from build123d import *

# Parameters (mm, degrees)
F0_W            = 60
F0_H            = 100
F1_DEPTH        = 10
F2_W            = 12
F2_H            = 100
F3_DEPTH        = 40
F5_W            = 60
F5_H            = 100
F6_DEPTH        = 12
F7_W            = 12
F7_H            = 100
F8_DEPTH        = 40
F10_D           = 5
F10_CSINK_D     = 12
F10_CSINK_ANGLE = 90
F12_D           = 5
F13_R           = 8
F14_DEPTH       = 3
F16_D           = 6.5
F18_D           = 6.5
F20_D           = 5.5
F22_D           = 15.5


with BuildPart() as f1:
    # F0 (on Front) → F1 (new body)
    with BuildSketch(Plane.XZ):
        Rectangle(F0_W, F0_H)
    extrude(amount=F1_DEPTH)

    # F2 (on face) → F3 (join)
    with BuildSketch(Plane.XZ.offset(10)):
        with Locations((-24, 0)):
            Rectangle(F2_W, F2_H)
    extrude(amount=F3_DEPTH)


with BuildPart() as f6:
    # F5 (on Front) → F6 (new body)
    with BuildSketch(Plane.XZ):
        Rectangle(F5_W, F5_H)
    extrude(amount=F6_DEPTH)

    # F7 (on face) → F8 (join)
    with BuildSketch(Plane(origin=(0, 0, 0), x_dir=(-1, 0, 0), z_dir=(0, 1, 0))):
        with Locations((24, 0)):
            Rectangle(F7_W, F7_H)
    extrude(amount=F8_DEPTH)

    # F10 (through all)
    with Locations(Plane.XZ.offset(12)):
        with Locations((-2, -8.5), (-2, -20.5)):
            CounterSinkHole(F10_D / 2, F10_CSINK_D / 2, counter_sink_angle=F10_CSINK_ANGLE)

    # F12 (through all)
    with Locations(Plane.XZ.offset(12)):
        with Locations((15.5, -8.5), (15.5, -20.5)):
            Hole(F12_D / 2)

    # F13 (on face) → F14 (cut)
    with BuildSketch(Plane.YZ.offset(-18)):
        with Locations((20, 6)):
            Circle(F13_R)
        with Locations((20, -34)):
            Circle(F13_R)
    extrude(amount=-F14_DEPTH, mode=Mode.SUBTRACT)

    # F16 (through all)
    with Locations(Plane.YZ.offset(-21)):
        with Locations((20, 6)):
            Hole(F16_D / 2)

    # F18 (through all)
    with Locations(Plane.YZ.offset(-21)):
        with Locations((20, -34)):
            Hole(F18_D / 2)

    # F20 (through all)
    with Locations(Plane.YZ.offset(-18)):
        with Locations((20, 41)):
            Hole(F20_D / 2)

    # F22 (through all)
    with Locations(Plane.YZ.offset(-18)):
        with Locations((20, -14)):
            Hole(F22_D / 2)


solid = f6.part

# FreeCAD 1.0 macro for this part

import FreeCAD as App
import Part
import Sketcher

doc = App.newDocument("Part")
body = doc.addObject("PartDesign::Body", "Body")

sketch1 = body.newObject("Sketcher::SketchObject", "Sketch")
sketch1.AttachmentSupport = (doc.getObject("XZ_Plane"), [""])
sketch1.MapMode = "FlatFace"
sketch1.addGeometry(Part.LineSegment(App.Vector(-30, 50, 0), App.Vector(-30, -50, 0)), False)
sketch1.addGeometry(Part.LineSegment(App.Vector(-30, -50, 0), App.Vector(30, -50, 0)), False)
sketch1.addGeometry(Part.LineSegment(App.Vector(30, -50, 0), App.Vector(30, 50, 0)), False)
sketch1.addGeometry(Part.LineSegment(App.Vector(30, 50, 0), App.Vector(-30, 50, 0)), False)
sketch1.addConstraint(Sketcher.Constraint("Coincident", 0, 2, 1, 1))
sketch1.addConstraint(Sketcher.Constraint("Coincident", 1, 2, 2, 1))
sketch1.addConstraint(Sketcher.Constraint("Coincident", 2, 2, 3, 1))
sketch1.addConstraint(Sketcher.Constraint("Coincident", 3, 2, 0, 1))
sketch1.addConstraint(Sketcher.Constraint("Vertical", 0))
sketch1.addConstraint(Sketcher.Constraint("Horizontal", 1))
sketch1.addConstraint(Sketcher.Constraint("Vertical", 2))
sketch1.addConstraint(Sketcher.Constraint("Horizontal", 3))
sketch1.addConstraint(Sketcher.Constraint("Symmetric", 0, 2, 2, 2, -1, 1))
sketch1.addConstraint(Sketcher.Constraint("DistanceX", 1, 1, 1, 2, 60.0))
sketch1.addConstraint(Sketcher.Constraint("DistanceY", 0, 2, 0, 1, 100.0))
pad1 = body.newObject("PartDesign::Pad", "Pad")
pad1.Profile = sketch1
pad1.Length = 10

sketch2 = body.newObject("Sketcher::SketchObject", "Sketch001")
sketch2.AttachmentSupport = (doc.getObject("XZ_Plane"), [""])
sketch2.MapMode = "FlatFace"
sketch2.AttachmentOffset = App.Placement(App.Vector(0, 0, 10), App.Rotation())
sketch2.addGeometry(Part.LineSegment(App.Vector(-30, 50, 0), App.Vector(-30, -50, 0)), False)
sketch2.addGeometry(Part.LineSegment(App.Vector(-30, -50, 0), App.Vector(-18, -50, 0)), False)
sketch2.addGeometry(Part.LineSegment(App.Vector(-18, -50, 0), App.Vector(-18, 50, 0)), False)
sketch2.addGeometry(Part.LineSegment(App.Vector(-18, 50, 0), App.Vector(-30, 50, 0)), False)
sketch2.addConstraint(Sketcher.Constraint("Coincident", 0, 2, 1, 1))
sketch2.addConstraint(Sketcher.Constraint("Coincident", 1, 2, 2, 1))
sketch2.addConstraint(Sketcher.Constraint("Coincident", 2, 2, 3, 1))
sketch2.addConstraint(Sketcher.Constraint("Coincident", 3, 2, 0, 1))
sketch2.addConstraint(Sketcher.Constraint("Vertical", 0))
sketch2.addConstraint(Sketcher.Constraint("Horizontal", 1))
sketch2.addConstraint(Sketcher.Constraint("Vertical", 2))
sketch2.addConstraint(Sketcher.Constraint("Horizontal", 3))
sketch2.addConstraint(Sketcher.Constraint("DistanceX", 1, 1, 1, 2, 12.0))
sketch2.addConstraint(Sketcher.Constraint("DistanceY", 0, 2, 0, 1, 100.0))
sketch2.addConstraint(Sketcher.Constraint("DistanceX", 0, 2, -1, 1, 30.0))
sketch2.addConstraint(Sketcher.Constraint("DistanceY", 0, 2, -1, 1, 50.0))
pad2 = body.newObject("PartDesign::Pad", "Pad001")
pad2.Profile = sketch2
pad2.Length = 40
body2 = doc.addObject("PartDesign::Body", "Body001")

sketch3 = body2.newObject("Sketcher::SketchObject", "Sketch002")
sketch3.AttachmentSupport = (doc.getObject("XZ_Plane001"), [""])
sketch3.MapMode = "FlatFace"
sketch3.addGeometry(Part.LineSegment(App.Vector(-30, 50, 0), App.Vector(-30, -50, 0)), False)
sketch3.addGeometry(Part.LineSegment(App.Vector(-30, -50, 0), App.Vector(30, -50, 0)), False)
sketch3.addGeometry(Part.LineSegment(App.Vector(30, -50, 0), App.Vector(30, 50, 0)), False)
sketch3.addGeometry(Part.LineSegment(App.Vector(30, 50, 0), App.Vector(-30, 50, 0)), False)
sketch3.addConstraint(Sketcher.Constraint("Coincident", 0, 2, 1, 1))
sketch3.addConstraint(Sketcher.Constraint("Coincident", 1, 2, 2, 1))
sketch3.addConstraint(Sketcher.Constraint("Coincident", 2, 2, 3, 1))
sketch3.addConstraint(Sketcher.Constraint("Coincident", 3, 2, 0, 1))
sketch3.addConstraint(Sketcher.Constraint("Vertical", 0))
sketch3.addConstraint(Sketcher.Constraint("Horizontal", 1))
sketch3.addConstraint(Sketcher.Constraint("Vertical", 2))
sketch3.addConstraint(Sketcher.Constraint("Horizontal", 3))
sketch3.addConstraint(Sketcher.Constraint("Symmetric", 0, 2, 2, 2, -1, 1))
sketch3.addConstraint(Sketcher.Constraint("DistanceX", 1, 1, 1, 2, 60.0))
sketch3.addConstraint(Sketcher.Constraint("DistanceY", 0, 2, 0, 1, 100.0))
pad3 = body2.newObject("PartDesign::Pad", "Pad002")
pad3.Profile = sketch3
pad3.Length = 12

sketch4 = body2.newObject("Sketcher::SketchObject", "Sketch003")
sketch4.AttachmentSupport = (doc.getObject("XZ_Plane001"), [""])
sketch4.MapMode = "FlatFace"
sketch4.addGeometry(Part.LineSegment(App.Vector(-18, 50, 0), App.Vector(-18, -50, 0)), False)
sketch4.addGeometry(Part.LineSegment(App.Vector(-18, -50, 0), App.Vector(-30, -50, 0)), False)
sketch4.addGeometry(Part.LineSegment(App.Vector(-30, -50, 0), App.Vector(-30, 50, 0)), False)
sketch4.addGeometry(Part.LineSegment(App.Vector(-30, 50, 0), App.Vector(-18, 50, 0)), False)
sketch4.addConstraint(Sketcher.Constraint("Coincident", 0, 2, 1, 1))
sketch4.addConstraint(Sketcher.Constraint("Coincident", 1, 2, 2, 1))
sketch4.addConstraint(Sketcher.Constraint("Coincident", 2, 2, 3, 1))
sketch4.addConstraint(Sketcher.Constraint("Coincident", 3, 2, 0, 1))
sketch4.addConstraint(Sketcher.Constraint("Vertical", 0))
sketch4.addConstraint(Sketcher.Constraint("Horizontal", 1))
sketch4.addConstraint(Sketcher.Constraint("Vertical", 2))
sketch4.addConstraint(Sketcher.Constraint("Horizontal", 3))
sketch4.addConstraint(Sketcher.Constraint("DistanceX", 1, 2, 1, 1, 12.0))
sketch4.addConstraint(Sketcher.Constraint("DistanceY", 0, 2, 0, 1, 100.0))
sketch4.addConstraint(Sketcher.Constraint("DistanceX", 0, 2, -1, 1, 18.0))
sketch4.addConstraint(Sketcher.Constraint("DistanceY", 0, 2, -1, 1, 50.0))
pad4 = body2.newObject("PartDesign::Pad", "Pad003")
pad4.Profile = sketch4
pad4.Length = 40
pad4.Reversed = True

sketch5 = body2.newObject("Sketcher::SketchObject", "Sketch004")
sketch5.AttachmentSupport = (doc.getObject("XZ_Plane001"), [""])
sketch5.MapMode = "FlatFace"
sketch5.AttachmentOffset = App.Placement(App.Vector(0, 0, 12), App.Rotation())
sketch5.addGeometry(Part.Circle(App.Vector(-2, -8.5, 0), App.Vector(0, 0, 1), 2.5), False)
sketch5.addGeometry(Part.Circle(App.Vector(-2, -20.5, 0), App.Vector(0, 0, 1), 2.5), False)
sketch5.addConstraint(Sketcher.Constraint("Equal", 0, 1))
sketch5.addConstraint(Sketcher.Constraint("Vertical", 0, 3, 1, 3))
sketch5.addConstraint(Sketcher.Constraint("Diameter", 0, 5.0))
sketch5.addConstraint(Sketcher.Constraint("DistanceX", 0, 3, -1, 1, 2.0))
sketch5.addConstraint(Sketcher.Constraint("DistanceY", 1, 3, 0, 3, 12.0))
sketch5.addConstraint(Sketcher.Constraint("DistanceY", 0, 3, -1, 1, 8.5))
doc.recompute()
hole = body2.newObject("PartDesign::Hole", "Hole")
hole.Profile = sketch5
hole.ThreadType = "None"
hole.Diameter = 5
hole.DepthType = "ThroughAll"
hole.HoleCutType = "Countersink"
hole.HoleCutDiameter = 12
hole.HoleCutCountersinkAngle = 90

sketch6 = body2.newObject("Sketcher::SketchObject", "Sketch005")
sketch6.AttachmentSupport = (doc.getObject("XZ_Plane001"), [""])
sketch6.MapMode = "FlatFace"
sketch6.AttachmentOffset = App.Placement(App.Vector(0, 0, 12), App.Rotation())
sketch6.addGeometry(Part.Circle(App.Vector(15.5, -8.5, 0), App.Vector(0, 0, 1), 2.5), False)
sketch6.addGeometry(Part.Circle(App.Vector(15.5, -20.5, 0), App.Vector(0, 0, 1), 2.5), False)
sketch6.addConstraint(Sketcher.Constraint("Equal", 0, 1))
sketch6.addConstraint(Sketcher.Constraint("Vertical", 0, 3, 1, 3))
sketch6.addConstraint(Sketcher.Constraint("Diameter", 0, 5.0))
sketch6.addConstraint(Sketcher.Constraint("DistanceY", 1, 3, 0, 3, 12.0))
sketch6.addConstraint(Sketcher.Constraint("DistanceX", -1, 1, 0, 3, 15.5))
sketch6.addConstraint(Sketcher.Constraint("DistanceY", 0, 3, -1, 1, 8.5))
doc.recompute()
hole2 = body2.newObject("PartDesign::Hole", "Hole001")
hole2.Profile = sketch6
hole2.ThreadType = "None"
hole2.Diameter = 5
hole2.DepthType = "ThroughAll"

sketch7 = body2.newObject("Sketcher::SketchObject", "Sketch006")
sketch7.AttachmentSupport = (doc.getObject("YZ_Plane001"), [""])
sketch7.MapMode = "FlatFace"
sketch7.AttachmentOffset = App.Placement(App.Vector(0, 0, -18), App.Rotation())
sketch7.addGeometry(Part.Circle(App.Vector(20, 6, 0), App.Vector(0, 0, 1), 8), False)
sketch7.addGeometry(Part.Circle(App.Vector(20, -34, 0), App.Vector(0, 0, 1), 8), False)
sketch7.addConstraint(Sketcher.Constraint("Equal", 0, 1))
sketch7.addConstraint(Sketcher.Constraint("Vertical", 0, 3, 1, 3))
sketch7.addConstraint(Sketcher.Constraint("Diameter", 0, 16.0))
sketch7.addConstraint(Sketcher.Constraint("DistanceX", -1, 1, 0, 3, 20.0))
sketch7.addConstraint(Sketcher.Constraint("DistanceY", -1, 1, 0, 3, 6.0))
sketch7.addConstraint(Sketcher.Constraint("DistanceY", 1, 3, -1, 1, 34.0))
pocket1 = body2.newObject("PartDesign::Pocket", "Pocket")
pocket1.Profile = sketch7
pocket1.Length = 3

sketch8 = body2.newObject("Sketcher::SketchObject", "Sketch007")
sketch8.AttachmentSupport = (doc.getObject("YZ_Plane001"), [""])
sketch8.MapMode = "FlatFace"
sketch8.AttachmentOffset = App.Placement(App.Vector(0, 0, -21), App.Rotation())
sketch8.addGeometry(Part.Circle(App.Vector(20, 6, 0), App.Vector(0, 0, 1), 3.2), False)
sketch8.addConstraint(Sketcher.Constraint("Diameter", 0, 6.5))
sketch8.addConstraint(Sketcher.Constraint("DistanceX", -1, 1, 0, 3, 20.0))
sketch8.addConstraint(Sketcher.Constraint("DistanceY", -1, 1, 0, 3, 6.0))
doc.recompute()
hole3 = body2.newObject("PartDesign::Hole", "Hole002")
hole3.Profile = sketch8
hole3.ThreadType = "None"
hole3.Diameter = 6.5
hole3.DepthType = "ThroughAll"

sketch9 = body2.newObject("Sketcher::SketchObject", "Sketch008")
sketch9.AttachmentSupport = (doc.getObject("YZ_Plane001"), [""])
sketch9.MapMode = "FlatFace"
sketch9.AttachmentOffset = App.Placement(App.Vector(0, 0, -21), App.Rotation())
sketch9.addGeometry(Part.Circle(App.Vector(20, -34, 0), App.Vector(0, 0, 1), 3.2), False)
sketch9.addConstraint(Sketcher.Constraint("Diameter", 0, 6.5))
sketch9.addConstraint(Sketcher.Constraint("DistanceX", -1, 1, 0, 3, 20.0))
sketch9.addConstraint(Sketcher.Constraint("DistanceY", 0, 3, -1, 1, 34.0))
doc.recompute()
hole4 = body2.newObject("PartDesign::Hole", "Hole003")
hole4.Profile = sketch9
hole4.ThreadType = "None"
hole4.Diameter = 6.5
hole4.DepthType = "ThroughAll"

sketch10 = body2.newObject("Sketcher::SketchObject", "Sketch009")
sketch10.AttachmentSupport = (doc.getObject("YZ_Plane001"), [""])
sketch10.MapMode = "FlatFace"
sketch10.AttachmentOffset = App.Placement(App.Vector(0, 0, -18), App.Rotation())
sketch10.addGeometry(Part.Circle(App.Vector(20, 41, 0), App.Vector(0, 0, 1), 2.8), False)
sketch10.addConstraint(Sketcher.Constraint("Diameter", 0, 5.5))
sketch10.addConstraint(Sketcher.Constraint("DistanceX", -1, 1, 0, 3, 20.0))
sketch10.addConstraint(Sketcher.Constraint("DistanceY", -1, 1, 0, 3, 41.0))
doc.recompute()
hole5 = body2.newObject("PartDesign::Hole", "Hole004")
hole5.Profile = sketch10
hole5.ThreadType = "None"
hole5.Diameter = 5.5
hole5.DepthType = "ThroughAll"

sketch11 = body2.newObject("Sketcher::SketchObject", "Sketch010")
sketch11.AttachmentSupport = (doc.getObject("YZ_Plane001"), [""])
sketch11.MapMode = "FlatFace"
sketch11.AttachmentOffset = App.Placement(App.Vector(0, 0, -18), App.Rotation())
sketch11.addGeometry(Part.Circle(App.Vector(20, -14, 0), App.Vector(0, 0, 1), 8), False)
sketch11.addConstraint(Sketcher.Constraint("Diameter", 0, 15.5))
sketch11.addConstraint(Sketcher.Constraint("DistanceX", -1, 1, 0, 3, 20.0))
sketch11.addConstraint(Sketcher.Constraint("DistanceY", 0, 3, -1, 1, 14.0))
doc.recompute()
hole6 = body2.newObject("PartDesign::Hole", "Hole005")
hole6.Profile = sketch11
hole6.ThreadType = "None"
hole6.Diameter = 15.5
hole6.DepthType = "ThroughAll"
body.Visibility = False

doc.recompute()
